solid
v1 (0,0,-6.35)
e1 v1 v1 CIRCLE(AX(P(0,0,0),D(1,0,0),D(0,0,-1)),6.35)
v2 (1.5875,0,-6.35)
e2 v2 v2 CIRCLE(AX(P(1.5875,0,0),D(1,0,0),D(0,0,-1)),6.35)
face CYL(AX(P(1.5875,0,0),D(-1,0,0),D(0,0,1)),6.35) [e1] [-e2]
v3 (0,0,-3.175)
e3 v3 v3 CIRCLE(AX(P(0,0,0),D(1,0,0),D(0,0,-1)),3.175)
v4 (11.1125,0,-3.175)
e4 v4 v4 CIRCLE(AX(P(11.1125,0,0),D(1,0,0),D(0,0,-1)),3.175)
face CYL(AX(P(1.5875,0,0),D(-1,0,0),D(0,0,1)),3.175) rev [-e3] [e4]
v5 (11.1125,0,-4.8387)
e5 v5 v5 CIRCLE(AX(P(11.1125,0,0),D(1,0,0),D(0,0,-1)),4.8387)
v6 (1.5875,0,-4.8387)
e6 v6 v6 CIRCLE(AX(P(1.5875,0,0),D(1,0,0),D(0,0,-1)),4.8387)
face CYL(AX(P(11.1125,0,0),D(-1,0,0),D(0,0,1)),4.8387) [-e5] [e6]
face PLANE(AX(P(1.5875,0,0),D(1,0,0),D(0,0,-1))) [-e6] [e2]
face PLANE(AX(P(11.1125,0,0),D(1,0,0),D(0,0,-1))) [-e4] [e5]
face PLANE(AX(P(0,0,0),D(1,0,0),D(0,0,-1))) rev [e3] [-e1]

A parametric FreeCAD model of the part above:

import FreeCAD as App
import Part
import Sketcher
Q = App.Units.Quantity

doc = App.newDocument("Part")
body = doc.addObject("PartDesign::Body", "Body")

sketch1 = body.newObject("Sketcher::SketchObject", "Sketch")
sketch1.AttachmentSupport = (doc.getObject("YZ_Plane"), [""])
sketch1.MapMode = "FlatFace"
sketch1.addGeometry([
    Part.Circle(App.Vector(0, 0, 0), App.Vector(0, 0, 1), 6.3),
    Part.Circle(App.Vector(0, 0, 0), App.Vector(0, 0, 1), 3.2),
], False)
sketch1.addConstraint([
    Sketcher.Constraint("Coincident", 0, 3, -1, 1),
    Sketcher.Constraint("Coincident", 1, 3, -1, 1),
    Sketcher.Constraint("Diameter", 0, Q("0.5 in")),
    Sketcher.Constraint("Diameter", 1, Q("0.25 in")),
])
pad1 = body.newObject("PartDesign::Pad", "Pad")
pad1.Profile = sketch1
pad1.Length = Q("0.0625 in")

sketch2 = body.newObject("Sketcher::SketchObject", "Sketch001")
sketch2.AttachmentSupport = (doc.getObject("YZ_Plane"), [""])
sketch2.MapMode = "FlatFace"
sketch2.AttachmentOffset = App.Placement(App.Vector(0, 0, 0.0625 * 25.4), App.Rotation())
sketch2.addGeometry([
    Part.Circle(App.Vector(0, 0, 0), App.Vector(0, 0, 1), 4.8),
    Part.Circle(App.Vector(0, 0, 0), App.Vector(0, 0, 1), 3.2),
], False)
sketch2.addConstraint([
    Sketcher.Constraint("Coincident", 0, 3, -1, 1),
    Sketcher.Constraint("Coincident", 1, 3, -1, 1),
    Sketcher.Constraint("Diameter", 1, Q("0.25 in")),
    Sketcher.Constraint("Diameter", 0, Q("0.381 in")),
])
pad2 = body.newObject("PartDesign::Pad", "Pad001")
pad2.Profile = sketch2
pad2.Length = Q("0.375 in")

doc.recompute()
